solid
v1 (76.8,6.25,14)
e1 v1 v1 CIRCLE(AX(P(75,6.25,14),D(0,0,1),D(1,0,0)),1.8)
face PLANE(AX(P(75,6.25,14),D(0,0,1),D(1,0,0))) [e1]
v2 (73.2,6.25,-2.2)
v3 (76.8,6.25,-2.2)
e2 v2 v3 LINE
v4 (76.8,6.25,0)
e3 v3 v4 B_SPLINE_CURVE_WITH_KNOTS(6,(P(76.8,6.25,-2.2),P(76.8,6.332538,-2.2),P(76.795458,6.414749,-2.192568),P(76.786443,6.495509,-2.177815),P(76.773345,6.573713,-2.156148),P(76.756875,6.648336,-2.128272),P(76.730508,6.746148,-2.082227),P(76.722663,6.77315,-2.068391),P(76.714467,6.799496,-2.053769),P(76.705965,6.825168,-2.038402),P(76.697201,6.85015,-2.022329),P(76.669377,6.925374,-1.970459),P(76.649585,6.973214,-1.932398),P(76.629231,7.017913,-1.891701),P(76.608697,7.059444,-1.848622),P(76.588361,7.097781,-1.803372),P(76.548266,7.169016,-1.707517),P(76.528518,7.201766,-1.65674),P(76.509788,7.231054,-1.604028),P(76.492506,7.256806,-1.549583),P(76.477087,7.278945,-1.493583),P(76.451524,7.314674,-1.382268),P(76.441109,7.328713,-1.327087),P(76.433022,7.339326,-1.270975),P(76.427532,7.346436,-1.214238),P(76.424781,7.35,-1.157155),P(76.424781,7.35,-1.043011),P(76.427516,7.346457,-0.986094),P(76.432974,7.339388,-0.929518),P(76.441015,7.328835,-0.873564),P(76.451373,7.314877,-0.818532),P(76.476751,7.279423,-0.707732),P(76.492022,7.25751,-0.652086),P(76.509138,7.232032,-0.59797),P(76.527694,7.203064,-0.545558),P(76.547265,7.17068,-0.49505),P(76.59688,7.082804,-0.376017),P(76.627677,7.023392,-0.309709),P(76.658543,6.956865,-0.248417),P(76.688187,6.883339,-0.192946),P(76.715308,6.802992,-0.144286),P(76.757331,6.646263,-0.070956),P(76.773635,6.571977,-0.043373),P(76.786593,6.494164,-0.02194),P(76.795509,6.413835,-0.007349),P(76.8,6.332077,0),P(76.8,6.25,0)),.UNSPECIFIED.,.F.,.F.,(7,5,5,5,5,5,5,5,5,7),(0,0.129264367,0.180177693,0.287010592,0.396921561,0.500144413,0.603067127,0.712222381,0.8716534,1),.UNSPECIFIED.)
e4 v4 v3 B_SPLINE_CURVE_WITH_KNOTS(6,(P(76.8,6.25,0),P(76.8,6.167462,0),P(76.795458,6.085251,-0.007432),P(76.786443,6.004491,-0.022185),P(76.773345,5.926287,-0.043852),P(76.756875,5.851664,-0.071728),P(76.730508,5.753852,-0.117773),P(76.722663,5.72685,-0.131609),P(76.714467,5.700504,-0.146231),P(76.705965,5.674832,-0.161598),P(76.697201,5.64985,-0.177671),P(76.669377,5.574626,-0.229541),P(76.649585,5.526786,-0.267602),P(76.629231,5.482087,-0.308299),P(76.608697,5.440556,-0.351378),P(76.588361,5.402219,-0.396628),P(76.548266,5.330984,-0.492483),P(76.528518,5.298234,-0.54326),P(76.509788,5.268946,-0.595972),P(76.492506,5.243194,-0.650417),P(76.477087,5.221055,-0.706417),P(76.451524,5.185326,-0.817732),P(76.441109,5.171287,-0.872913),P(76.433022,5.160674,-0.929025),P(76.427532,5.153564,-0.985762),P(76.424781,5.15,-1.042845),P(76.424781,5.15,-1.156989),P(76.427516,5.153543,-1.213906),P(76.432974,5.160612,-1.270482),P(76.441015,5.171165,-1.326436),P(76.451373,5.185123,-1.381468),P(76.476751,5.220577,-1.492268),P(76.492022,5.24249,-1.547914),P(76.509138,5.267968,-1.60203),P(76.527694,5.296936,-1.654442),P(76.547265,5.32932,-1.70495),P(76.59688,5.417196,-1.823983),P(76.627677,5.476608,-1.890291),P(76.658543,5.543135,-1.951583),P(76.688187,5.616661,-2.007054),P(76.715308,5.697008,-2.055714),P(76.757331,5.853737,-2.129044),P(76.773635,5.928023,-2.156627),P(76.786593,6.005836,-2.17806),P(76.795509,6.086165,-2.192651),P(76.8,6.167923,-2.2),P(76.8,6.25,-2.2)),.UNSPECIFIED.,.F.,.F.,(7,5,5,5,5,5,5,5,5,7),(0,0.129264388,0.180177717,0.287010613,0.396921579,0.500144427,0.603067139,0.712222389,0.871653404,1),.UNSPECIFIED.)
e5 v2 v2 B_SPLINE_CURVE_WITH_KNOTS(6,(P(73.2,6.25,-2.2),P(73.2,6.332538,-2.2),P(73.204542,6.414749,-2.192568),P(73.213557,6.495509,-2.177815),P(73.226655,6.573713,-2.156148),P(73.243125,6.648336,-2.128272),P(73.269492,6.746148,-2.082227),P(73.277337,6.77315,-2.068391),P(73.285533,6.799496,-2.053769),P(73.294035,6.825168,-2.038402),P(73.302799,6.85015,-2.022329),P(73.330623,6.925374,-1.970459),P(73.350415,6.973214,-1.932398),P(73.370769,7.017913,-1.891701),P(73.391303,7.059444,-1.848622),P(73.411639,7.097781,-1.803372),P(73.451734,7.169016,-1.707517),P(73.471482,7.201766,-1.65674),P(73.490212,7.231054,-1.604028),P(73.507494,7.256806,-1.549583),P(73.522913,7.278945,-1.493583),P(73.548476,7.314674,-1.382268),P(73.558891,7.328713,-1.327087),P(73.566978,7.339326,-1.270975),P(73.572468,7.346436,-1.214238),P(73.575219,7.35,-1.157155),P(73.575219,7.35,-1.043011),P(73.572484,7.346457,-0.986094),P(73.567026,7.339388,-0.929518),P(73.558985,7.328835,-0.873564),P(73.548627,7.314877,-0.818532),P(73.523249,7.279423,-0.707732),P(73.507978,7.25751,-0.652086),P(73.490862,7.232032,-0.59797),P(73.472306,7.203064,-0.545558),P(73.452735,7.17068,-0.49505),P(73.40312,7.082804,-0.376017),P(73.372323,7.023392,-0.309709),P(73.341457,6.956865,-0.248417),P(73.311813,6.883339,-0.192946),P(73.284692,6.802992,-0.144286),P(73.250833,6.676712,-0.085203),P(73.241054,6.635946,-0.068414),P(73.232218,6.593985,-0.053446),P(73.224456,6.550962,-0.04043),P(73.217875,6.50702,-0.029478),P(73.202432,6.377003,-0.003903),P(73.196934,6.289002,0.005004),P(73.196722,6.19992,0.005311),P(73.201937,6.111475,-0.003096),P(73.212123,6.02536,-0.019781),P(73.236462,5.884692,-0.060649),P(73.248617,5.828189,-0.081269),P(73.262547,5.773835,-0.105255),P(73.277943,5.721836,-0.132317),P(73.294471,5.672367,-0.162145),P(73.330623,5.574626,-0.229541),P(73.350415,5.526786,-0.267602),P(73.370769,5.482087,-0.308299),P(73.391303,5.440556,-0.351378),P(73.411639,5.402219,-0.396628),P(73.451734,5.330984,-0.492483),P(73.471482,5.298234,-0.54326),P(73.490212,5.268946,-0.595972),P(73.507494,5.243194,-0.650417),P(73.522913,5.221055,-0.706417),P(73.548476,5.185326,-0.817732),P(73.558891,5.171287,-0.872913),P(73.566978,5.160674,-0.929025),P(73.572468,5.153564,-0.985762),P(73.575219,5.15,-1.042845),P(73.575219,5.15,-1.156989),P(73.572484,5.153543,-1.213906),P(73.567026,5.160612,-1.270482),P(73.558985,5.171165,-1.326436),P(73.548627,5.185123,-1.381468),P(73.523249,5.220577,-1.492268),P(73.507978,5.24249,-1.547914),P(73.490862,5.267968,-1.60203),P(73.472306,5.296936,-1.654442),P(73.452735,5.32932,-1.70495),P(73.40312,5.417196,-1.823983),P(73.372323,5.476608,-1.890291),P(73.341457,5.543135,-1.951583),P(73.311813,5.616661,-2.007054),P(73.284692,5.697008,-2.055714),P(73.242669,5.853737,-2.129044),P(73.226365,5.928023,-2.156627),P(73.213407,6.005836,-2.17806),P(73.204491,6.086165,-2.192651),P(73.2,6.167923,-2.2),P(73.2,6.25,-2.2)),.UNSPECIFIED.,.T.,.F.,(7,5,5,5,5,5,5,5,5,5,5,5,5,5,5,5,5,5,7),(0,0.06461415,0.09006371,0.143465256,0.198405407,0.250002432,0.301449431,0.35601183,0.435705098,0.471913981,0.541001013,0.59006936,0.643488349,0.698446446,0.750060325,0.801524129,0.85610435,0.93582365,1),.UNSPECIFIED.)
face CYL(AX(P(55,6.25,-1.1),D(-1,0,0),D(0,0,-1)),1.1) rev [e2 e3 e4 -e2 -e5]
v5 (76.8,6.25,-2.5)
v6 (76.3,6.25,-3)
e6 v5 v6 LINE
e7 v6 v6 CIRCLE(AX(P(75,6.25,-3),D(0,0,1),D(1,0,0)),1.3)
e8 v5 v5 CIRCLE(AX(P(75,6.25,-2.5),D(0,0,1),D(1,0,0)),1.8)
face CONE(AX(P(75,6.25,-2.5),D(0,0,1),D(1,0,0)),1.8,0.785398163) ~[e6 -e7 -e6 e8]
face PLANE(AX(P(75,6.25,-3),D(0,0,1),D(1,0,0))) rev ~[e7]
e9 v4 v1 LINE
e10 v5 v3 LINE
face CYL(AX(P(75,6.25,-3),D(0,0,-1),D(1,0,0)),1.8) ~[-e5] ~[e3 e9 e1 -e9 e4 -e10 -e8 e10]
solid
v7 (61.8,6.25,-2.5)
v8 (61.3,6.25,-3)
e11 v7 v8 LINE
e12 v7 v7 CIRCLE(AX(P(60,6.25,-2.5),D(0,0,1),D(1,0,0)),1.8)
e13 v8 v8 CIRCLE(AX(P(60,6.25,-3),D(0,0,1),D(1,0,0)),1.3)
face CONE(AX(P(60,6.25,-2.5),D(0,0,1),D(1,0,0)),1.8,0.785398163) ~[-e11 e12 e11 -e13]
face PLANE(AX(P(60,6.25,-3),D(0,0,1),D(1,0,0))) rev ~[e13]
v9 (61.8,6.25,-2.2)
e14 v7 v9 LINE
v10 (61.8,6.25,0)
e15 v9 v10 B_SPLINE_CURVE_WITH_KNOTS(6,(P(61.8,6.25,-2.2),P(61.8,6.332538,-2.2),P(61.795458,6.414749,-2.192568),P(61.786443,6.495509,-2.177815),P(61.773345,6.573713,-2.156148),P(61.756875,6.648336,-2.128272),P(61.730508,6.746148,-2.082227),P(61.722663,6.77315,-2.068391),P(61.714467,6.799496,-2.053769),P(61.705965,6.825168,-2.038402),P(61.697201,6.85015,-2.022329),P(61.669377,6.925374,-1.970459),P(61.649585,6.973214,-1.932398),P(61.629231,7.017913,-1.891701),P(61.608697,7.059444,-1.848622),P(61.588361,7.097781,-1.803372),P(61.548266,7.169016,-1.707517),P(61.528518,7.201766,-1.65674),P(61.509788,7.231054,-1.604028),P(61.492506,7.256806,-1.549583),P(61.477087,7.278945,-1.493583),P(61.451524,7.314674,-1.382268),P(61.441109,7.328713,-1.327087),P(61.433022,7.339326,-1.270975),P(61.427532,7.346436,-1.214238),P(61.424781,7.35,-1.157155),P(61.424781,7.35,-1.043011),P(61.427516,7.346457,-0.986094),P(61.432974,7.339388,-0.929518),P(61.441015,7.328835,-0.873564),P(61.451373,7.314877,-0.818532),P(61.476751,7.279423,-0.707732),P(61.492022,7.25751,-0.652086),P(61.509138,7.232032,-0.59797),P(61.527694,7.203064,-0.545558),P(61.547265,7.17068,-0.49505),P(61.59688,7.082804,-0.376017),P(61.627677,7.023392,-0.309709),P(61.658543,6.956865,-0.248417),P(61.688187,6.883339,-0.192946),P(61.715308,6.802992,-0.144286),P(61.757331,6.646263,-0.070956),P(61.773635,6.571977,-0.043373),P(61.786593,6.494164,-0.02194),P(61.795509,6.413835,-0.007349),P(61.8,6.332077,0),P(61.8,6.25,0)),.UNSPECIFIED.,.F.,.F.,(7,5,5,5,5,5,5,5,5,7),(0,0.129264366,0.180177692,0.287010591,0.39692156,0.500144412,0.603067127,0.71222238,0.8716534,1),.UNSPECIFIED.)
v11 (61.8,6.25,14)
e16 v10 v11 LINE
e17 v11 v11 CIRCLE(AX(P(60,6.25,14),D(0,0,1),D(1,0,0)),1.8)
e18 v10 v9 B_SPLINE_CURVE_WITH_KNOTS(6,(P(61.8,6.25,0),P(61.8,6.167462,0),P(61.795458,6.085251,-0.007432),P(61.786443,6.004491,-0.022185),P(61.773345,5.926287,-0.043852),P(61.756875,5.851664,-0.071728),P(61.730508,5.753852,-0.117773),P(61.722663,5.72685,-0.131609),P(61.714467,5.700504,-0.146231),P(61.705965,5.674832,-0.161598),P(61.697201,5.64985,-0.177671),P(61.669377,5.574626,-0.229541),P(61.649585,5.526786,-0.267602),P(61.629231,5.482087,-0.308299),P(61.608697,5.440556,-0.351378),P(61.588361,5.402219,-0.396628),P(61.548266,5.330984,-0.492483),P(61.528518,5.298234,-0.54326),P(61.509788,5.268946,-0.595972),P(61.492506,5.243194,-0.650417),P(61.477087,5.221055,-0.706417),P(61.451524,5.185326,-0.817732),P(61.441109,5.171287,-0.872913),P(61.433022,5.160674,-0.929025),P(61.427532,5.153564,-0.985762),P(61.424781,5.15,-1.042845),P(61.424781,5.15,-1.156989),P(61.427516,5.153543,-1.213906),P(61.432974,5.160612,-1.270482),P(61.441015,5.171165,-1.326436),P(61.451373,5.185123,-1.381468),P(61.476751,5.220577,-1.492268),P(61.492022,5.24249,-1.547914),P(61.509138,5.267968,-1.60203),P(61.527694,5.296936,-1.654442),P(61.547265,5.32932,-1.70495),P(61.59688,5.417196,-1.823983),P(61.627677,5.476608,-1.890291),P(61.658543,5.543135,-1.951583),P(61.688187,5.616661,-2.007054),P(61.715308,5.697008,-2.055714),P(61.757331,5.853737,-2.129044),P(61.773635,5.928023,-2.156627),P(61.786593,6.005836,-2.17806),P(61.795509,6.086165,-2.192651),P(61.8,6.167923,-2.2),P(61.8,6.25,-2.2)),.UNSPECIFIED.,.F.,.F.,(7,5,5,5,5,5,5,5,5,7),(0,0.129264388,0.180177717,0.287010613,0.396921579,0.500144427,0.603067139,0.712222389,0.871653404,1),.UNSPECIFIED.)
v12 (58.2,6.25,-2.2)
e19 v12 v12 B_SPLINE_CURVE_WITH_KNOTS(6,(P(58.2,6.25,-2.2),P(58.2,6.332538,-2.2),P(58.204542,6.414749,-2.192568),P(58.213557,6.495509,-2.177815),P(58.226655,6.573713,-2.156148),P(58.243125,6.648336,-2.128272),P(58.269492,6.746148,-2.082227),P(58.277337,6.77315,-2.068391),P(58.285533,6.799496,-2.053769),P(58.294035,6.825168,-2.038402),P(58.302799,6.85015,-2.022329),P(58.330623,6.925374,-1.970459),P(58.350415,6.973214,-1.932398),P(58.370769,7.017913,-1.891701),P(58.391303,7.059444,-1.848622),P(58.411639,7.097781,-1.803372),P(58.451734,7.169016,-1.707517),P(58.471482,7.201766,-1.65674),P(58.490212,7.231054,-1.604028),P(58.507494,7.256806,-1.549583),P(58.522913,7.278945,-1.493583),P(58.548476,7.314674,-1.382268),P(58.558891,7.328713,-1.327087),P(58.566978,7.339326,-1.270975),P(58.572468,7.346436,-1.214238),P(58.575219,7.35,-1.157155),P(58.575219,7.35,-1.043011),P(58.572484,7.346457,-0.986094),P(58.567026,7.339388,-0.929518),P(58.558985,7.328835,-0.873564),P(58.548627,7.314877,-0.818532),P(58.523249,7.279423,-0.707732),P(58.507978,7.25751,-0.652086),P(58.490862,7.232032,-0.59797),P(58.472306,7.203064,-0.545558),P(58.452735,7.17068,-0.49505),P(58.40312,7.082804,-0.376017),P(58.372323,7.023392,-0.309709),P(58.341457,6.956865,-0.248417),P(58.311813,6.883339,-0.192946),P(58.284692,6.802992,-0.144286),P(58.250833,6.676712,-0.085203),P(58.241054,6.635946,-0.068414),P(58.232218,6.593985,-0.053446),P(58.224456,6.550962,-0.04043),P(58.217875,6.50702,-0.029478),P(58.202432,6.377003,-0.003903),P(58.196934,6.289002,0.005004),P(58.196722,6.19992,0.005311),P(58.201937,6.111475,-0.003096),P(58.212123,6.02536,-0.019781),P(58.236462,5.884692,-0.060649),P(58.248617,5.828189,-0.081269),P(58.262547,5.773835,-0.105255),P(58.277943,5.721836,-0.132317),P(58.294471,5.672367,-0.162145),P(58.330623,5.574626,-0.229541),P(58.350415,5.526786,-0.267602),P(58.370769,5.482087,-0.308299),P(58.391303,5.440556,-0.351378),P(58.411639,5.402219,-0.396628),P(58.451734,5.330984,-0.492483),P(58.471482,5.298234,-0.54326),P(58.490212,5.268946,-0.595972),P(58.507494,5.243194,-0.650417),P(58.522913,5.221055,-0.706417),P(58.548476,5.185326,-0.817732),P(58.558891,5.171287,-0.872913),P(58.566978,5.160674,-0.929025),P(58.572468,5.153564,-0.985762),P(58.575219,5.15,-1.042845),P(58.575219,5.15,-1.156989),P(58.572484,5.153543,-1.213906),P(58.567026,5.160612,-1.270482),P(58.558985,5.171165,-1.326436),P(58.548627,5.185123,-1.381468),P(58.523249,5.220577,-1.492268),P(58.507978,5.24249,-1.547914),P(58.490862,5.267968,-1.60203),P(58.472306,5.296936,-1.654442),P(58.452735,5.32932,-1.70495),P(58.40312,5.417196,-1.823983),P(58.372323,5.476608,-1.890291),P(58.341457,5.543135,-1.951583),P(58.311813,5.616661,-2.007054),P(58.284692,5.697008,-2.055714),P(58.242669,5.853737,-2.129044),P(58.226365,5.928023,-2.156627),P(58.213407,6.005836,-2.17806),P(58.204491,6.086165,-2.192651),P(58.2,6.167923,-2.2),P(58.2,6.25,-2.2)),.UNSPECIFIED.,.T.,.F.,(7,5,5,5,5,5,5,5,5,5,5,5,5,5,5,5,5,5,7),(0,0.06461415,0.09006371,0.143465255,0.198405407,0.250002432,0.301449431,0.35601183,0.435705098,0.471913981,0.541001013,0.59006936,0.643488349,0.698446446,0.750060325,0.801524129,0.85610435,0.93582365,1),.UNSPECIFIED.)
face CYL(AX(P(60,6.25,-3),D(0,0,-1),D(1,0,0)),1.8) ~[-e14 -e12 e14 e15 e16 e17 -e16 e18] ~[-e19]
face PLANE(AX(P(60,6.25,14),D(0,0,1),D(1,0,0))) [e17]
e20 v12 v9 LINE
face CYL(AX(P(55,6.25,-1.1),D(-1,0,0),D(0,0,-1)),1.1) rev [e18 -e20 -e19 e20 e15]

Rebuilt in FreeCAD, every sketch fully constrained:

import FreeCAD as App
import Part
import Sketcher
Q = App.Units.Quantity


def edges_at(feature, points):
    """Names of the edges that pass closest to the given points."""
    edges = feature.Shape.Edges
    near = lambda p: min(range(len(edges)), key=lambda i: edges[i].distToShape(Part.Vertex(*p))[0])
    return sorted({f"Edge{near(p) + 1}" for p in points})

doc = App.newDocument("Part")
body = doc.addObject("PartDesign::Body", "Body")

sketch1 = body.newObject("Sketcher::SketchObject", "Sketch")
sketch1.AttachmentSupport = (doc.getObject("YZ_Plane"), [""])
sketch1.MapMode = "FlatFace"
sketch1.AttachmentOffset = App.Placement(App.Vector(0, 0, 55), App.Rotation())
sketch1.addGeometry(Part.Circle(App.Vector(6.2, -1.1, 0), App.Vector(0, 0, 1), 1.1), False)
sketch1.addConstraint(Sketcher.Constraint("Diameter", 0, Q("2.2 mm")))
sketch1.addConstraint(Sketcher.Constraint("DistanceY", 0, 3, -1, 1, Q("1.1 mm")))
sketch1.addConstraint(Sketcher.Constraint("DistanceX", -1, 1, 0, 3, Q("6.25 mm")))
pad1 = body.newObject("PartDesign::Pad", "Pad")
pad1.Profile = sketch1
pad1.Length = 25
body2 = doc.addObject("PartDesign::Body", "Body001")

sketch2 = body2.newObject("Sketcher::SketchObject", "Sketch001")
sketch2.AttachmentSupport = (doc.getObject("XY_Plane001"), [""])
sketch2.MapMode = "FlatFace"
sketch2.AttachmentOffset = App.Placement(App.Vector(0, 0, -3), App.Rotation())
sketch2.addGeometry(Part.Circle(App.Vector(75, 6.2, 0), App.Vector(0, 0, 1), 1.8), False)
sketch2.addConstraint(Sketcher.Constraint("Diameter", 0, Q("3.6 mm")))
sketch2.addConstraint(Sketcher.Constraint("DistanceX", -1, 1, 0, 3, Q("75 mm")))
sketch2.addConstraint(Sketcher.Constraint("DistanceY", -1, 1, 0, 3, Q("6.25 mm")))
pad2 = body2.newObject("PartDesign::Pad", "Pad001")
pad2.Profile = sketch2
pad2.Length = 17
body3 = doc.addObject("PartDesign::Body", "Body002")
body3.AllowCompound = True

sketch3 = body3.newObject("Sketcher::SketchObject", "Sketch002")
sketch3.AttachmentSupport = (doc.getObject("XY_Plane002"), [""])
sketch3.MapMode = "FlatFace"
sketch3.AttachmentOffset = App.Placement(App.Vector(0, 0, -3), App.Rotation())
sketch3.addGeometry(Part.Circle(App.Vector(60, 6.2, 0), App.Vector(0, 0, 1), 1.8), False)
sketch3.addConstraint(Sketcher.Constraint("Diameter", 0, Q("3.6 mm")))
sketch3.addConstraint(Sketcher.Constraint("DistanceX", -1, 1, 0, 3, Q("60 mm")))
sketch3.addConstraint(Sketcher.Constraint("DistanceY", -1, 1, 0, 3, Q("6.25 mm")))
pad3 = body3.newObject("PartDesign::Pad", "Pad002")
pad3.Profile = sketch3
pad3.Length = 17
doc.recompute()

boolean = body3.newObject("PartDesign::Boolean", "Boolean")
boolean.Type = "Fuse"
boolean.addObjects([body2])
doc.recompute()

chamfer = body3.newObject("PartDesign::Chamfer", "Chamfer")
chamfer.Base = (boolean, edges_at(boolean, [(58.2, 6.25, -3), (73.2, 6.25, -3)]))
chamfer.Size = 0.5
doc.recompute()

boolean2 = body3.newObject("PartDesign::Boolean", "Boolean001")
boolean2.Type = "Cut"
boolean2.addObjects([body])

doc.recompute()
